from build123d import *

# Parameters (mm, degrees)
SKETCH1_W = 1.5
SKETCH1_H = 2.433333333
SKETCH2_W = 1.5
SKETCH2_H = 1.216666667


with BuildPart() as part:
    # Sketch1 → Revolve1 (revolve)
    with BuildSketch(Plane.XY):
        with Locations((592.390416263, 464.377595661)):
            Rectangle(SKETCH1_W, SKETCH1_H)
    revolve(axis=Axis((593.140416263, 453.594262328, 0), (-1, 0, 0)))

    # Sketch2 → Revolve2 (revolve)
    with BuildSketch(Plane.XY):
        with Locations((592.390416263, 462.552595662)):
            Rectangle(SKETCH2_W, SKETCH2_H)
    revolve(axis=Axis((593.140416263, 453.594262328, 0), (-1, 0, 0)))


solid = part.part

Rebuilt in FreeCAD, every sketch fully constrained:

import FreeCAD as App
import Part
import Sketcher
from FreeCAD import Vector

doc = App.newDocument("Part")
body = doc.addObject("PartDesign::Body", "Body")

sketch1 = doc.addObject("Sketcher::SketchObject", "Sketch")
body.addObject(sketch1)
sketch1.AttachmentSupport = (doc.XY_Plane, [""])
sketch1.MapMode = "FlatFace"
sketch1.addGeometry(Part.LineSegment(Vector(591.640416, 465.594262, 0), Vector(591.640416, 463.160929, 0)), False)
sketch1.addGeometry(Part.LineSegment(Vector(591.640416, 463.160929, 0), Vector(593.140416, 463.160929, 0)), False)
sketch1.addGeometry(Part.LineSegment(Vector(593.140416, 463.160929, 0), Vector(593.140416, 465.594262, 0)), False)
sketch1.addGeometry(Part.LineSegment(Vector(593.140416, 465.594262, 0), Vector(591.640416, 465.594262, 0)), False)
sketch1.addGeometry(Part.LineSegment(Vector(593.140416, 453.594262, 0), Vector(591.640416, 453.594262, 0)), True)
sketch1.addConstraint(Sketcher.Constraint("Coincident", 0, 2, 1, 1))
sketch1.addConstraint(Sketcher.Constraint("Coincident", 1, 2, 2, 1))
sketch1.addConstraint(Sketcher.Constraint("Coincident", 2, 2, 3, 1))
sketch1.addConstraint(Sketcher.Constraint("Coincident", 3, 2, 0, 1))
sketch1.addConstraint(Sketcher.Constraint("Vertical", 0))
sketch1.addConstraint(Sketcher.Constraint("Horizontal", 1))
sketch1.addConstraint(Sketcher.Constraint("Vertical", 2))
sketch1.addConstraint(Sketcher.Constraint("Horizontal", 3))
sketch1.addConstraint(Sketcher.Constraint("Horizontal", 4))
sketch1.addConstraint(Sketcher.Constraint("Vertical", 2, 2, 4, 1))
sketch1.addConstraint(Sketcher.Constraint("Vertical", 3, 2, 4, 2))
sketch1.addConstraint(Sketcher.Constraint("DistanceX", 1, 1, 1, 2, 1.5))
sketch1.addConstraint(Sketcher.Constraint("DistanceY", 4, 1, 2, 2, 12.0))
sketch1.addConstraint(Sketcher.Constraint("DistanceY", 0, 2, 0, 1, 2.433333))
sketch1.addConstraint(Sketcher.Constraint("DistanceY", -1, 1, 0, 2, 463.160929))
sketch1.addConstraint(Sketcher.Constraint("DistanceX", -1, 1, 0, 2, 591.640416))
revolution = doc.addObject("PartDesign::Revolution", "Revolution")
body.addObject(revolution)
revolution.Profile = sketch1
revolution.ReferenceAxis = (sketch1, ["Axis0"])
revolution.Angle = 360

sketch2 = doc.addObject("Sketcher::SketchObject", "Sketch001")
body.addObject(sketch2)
sketch2.AttachmentSupport = (doc.XY_Plane, [""])
sketch2.MapMode = "FlatFace"
sketch2.addGeometry(Part.LineSegment(Vector(591.640416, 463.160929, 0), Vector(591.640416, 461.944262, 0)), False)
sketch2.addGeometry(Part.LineSegment(Vector(591.640416, 461.944262, 0), Vector(593.140416, 461.944262, 0)), False)
sketch2.addGeometry(Part.LineSegment(Vector(593.140416, 461.944262, 0), Vector(593.140416, 463.160929, 0)), False)
sketch2.addGeometry(Part.LineSegment(Vector(593.140416, 463.160929, 0), Vector(591.640416, 463.160929, 0)), False)
sketch2.addGeometry(Part.LineSegment(Vector(593.140416, 453.594262, 0), Vector(591.640416, 453.594262, 0)), True)
sketch2.addConstraint(Sketcher.Constraint("Coincident", 0, 2, 1, 1))
sketch2.addConstraint(Sketcher.Constraint("Coincident", 1, 2, 2, 1))
sketch2.addConstraint(Sketcher.Constraint("Coincident", 2, 2, 3, 1))
sketch2.addConstraint(Sketcher.Constraint("Coincident", 3, 2, 0, 1))
sketch2.addConstraint(Sketcher.Constraint("Vertical", 0))
sketch2.addConstraint(Sketcher.Constraint("Horizontal", 1))
sketch2.addConstraint(Sketcher.Constraint("Vertical", 2))
sketch2.addConstraint(Sketcher.Constraint("Horizontal", 3))
sketch2.addConstraint(Sketcher.Constraint("Horizontal", 4))
sketch2.addConstraint(Sketcher.Constraint("Vertical", 2, 2, 4, 1))
sketch2.addConstraint(Sketcher.Constraint("Vertical", 3, 2, 4, 2))
sketch2.addConstraint(Sketcher.Constraint("DistanceX", 1, 1, 1, 2, 1.5))
sketch2.addConstraint(Sketcher.Constraint("DistanceY", 4, 1, 1, 2, 8.35))
sketch2.addConstraint(Sketcher.Constraint("DistanceY", 0, 2, 0, 1, 1.216667))
sketch2.addConstraint(Sketcher.Constraint("DistanceY", -1, 1, 2, 2, 463.160929))
sketch2.addConstraint(Sketcher.Constraint("DistanceX", -1, 1, 0, 2, 591.640416))
revolution2 = doc.addObject("PartDesign::Revolution", "Revolution001")
body.addObject(revolution2)
revolution2.Profile = sketch2
revolution2.ReferenceAxis = (sketch2, ["Axis0"])
revolution2.Angle = 360

doc.recompute()
